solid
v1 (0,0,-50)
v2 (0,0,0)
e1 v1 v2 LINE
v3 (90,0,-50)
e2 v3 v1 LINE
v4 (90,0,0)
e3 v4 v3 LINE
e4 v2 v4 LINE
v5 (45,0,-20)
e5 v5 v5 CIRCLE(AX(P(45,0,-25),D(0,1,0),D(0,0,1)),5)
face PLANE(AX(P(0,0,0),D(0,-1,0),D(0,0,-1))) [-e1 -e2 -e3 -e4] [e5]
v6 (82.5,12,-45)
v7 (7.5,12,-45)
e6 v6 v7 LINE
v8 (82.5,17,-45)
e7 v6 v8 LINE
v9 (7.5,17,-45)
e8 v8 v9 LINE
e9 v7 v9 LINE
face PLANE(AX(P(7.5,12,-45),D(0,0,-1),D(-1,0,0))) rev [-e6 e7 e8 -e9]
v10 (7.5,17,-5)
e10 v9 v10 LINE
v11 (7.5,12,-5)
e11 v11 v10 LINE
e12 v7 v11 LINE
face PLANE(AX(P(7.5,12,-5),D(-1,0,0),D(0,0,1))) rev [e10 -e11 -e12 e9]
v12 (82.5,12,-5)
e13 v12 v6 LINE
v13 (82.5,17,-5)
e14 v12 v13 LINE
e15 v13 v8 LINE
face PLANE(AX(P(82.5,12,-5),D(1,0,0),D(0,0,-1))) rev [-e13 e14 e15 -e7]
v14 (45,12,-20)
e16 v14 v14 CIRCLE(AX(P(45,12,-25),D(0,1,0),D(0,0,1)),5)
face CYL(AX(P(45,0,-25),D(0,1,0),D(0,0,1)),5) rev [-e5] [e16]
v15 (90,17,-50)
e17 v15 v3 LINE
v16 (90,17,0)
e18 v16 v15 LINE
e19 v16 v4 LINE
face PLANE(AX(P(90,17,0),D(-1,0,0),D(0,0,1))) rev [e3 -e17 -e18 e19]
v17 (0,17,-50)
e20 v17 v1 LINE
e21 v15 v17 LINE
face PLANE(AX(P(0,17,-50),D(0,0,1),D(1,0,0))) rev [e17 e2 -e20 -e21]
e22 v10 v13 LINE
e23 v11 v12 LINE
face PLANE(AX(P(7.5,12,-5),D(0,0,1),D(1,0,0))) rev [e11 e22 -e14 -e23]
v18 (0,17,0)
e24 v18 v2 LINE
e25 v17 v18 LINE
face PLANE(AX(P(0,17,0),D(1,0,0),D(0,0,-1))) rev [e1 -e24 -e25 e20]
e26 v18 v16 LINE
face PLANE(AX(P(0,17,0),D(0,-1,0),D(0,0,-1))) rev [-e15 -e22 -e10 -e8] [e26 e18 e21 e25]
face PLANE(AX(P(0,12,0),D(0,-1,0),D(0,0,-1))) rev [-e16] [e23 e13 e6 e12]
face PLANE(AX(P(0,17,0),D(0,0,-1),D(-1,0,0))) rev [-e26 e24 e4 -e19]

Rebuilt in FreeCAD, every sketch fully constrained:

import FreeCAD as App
import Part
import Sketcher
from FreeCAD import Vector

doc = App.newDocument("Part")
body = doc.addObject("PartDesign::Body", "Body")

# Sketch on XZ plane
sketch1 = doc.addObject("Sketcher::SketchObject", "Sketch")
body.addObject(sketch1)
sketch1.AttachmentSupport = (doc.XZ_Plane, [""])
sketch1.MapMode = "FlatFace"
sketch1.addGeometry(Part.LineSegment(Vector(0, -50, 0), Vector(0, 0, 0)), False)
sketch1.addGeometry(Part.LineSegment(Vector(0, 0, 0), Vector(90, 0, 0)), False)
sketch1.addGeometry(Part.LineSegment(Vector(90, 0, 0), Vector(90, -50, 0)), False)
sketch1.addGeometry(Part.LineSegment(Vector(90, -50, 0), Vector(0, -50, 0)), False)
sketch1.addConstraint(Sketcher.Constraint("Coincident", 0, 2, 1, 1))
sketch1.addConstraint(Sketcher.Constraint("Coincident", 1, 2, 2, 1))
sketch1.addConstraint(Sketcher.Constraint("Coincident", 2, 2, 3, 1))
sketch1.addConstraint(Sketcher.Constraint("Coincident", 3, 2, 0, 1))
sketch1.addConstraint(Sketcher.Constraint("Vertical", 0))
sketch1.addConstraint(Sketcher.Constraint("Horizontal", 1))
sketch1.addConstraint(Sketcher.Constraint("Vertical", 2))
sketch1.addConstraint(Sketcher.Constraint("Horizontal", 3))
sketch1.addConstraint(Sketcher.Constraint("Coincident", 0, 2, -1, 1))
sketch1.addConstraint(Sketcher.Constraint("DistanceX", 1, 1, 1, 2, 90.0))
sketch1.addConstraint(Sketcher.Constraint("DistanceY", 0, 1, 0, 2, 50.0))
pad1 = doc.addObject("PartDesign::Pad", "Pad")
body.addObject(pad1)
pad1.Profile = sketch1
pad1.Length = 17
pad1.Reversed = True

# Sketch on XZ plane
sketch2 = doc.addObject("Sketcher::SketchObject", "Sketch001")
body.addObject(sketch2)
sketch2.AttachmentSupport = (doc.XZ_Plane, [""])
sketch2.MapMode = "FlatFace"
sketch2.AttachmentOffset = App.Placement(Vector(0, 0, -17), App.Rotation())
sketch2.addGeometry(Part.LineSegment(Vector(7.5, -45, 0), Vector(7.5, -5, 0)), False)
sketch2.addGeometry(Part.LineSegment(Vector(7.5, -5, 0), Vector(82.5, -5, 0)), False)
sketch2.addGeometry(Part.LineSegment(Vector(82.5, -5, 0), Vector(82.5, -45, 0)), False)
sketch2.addGeometry(Part.LineSegment(Vector(82.5, -45, 0), Vector(7.5, -45, 0)), False)
sketch2.addConstraint(Sketcher.Constraint("Coincident", 0, 2, 1, 1))
sketch2.addConstraint(Sketcher.Constraint("Coincident", 1, 2, 2, 1))
sketch2.addConstraint(Sketcher.Constraint("Coincident", 2, 2, 3, 1))
sketch2.addConstraint(Sketcher.Constraint("Coincident", 3, 2, 0, 1))
sketch2.addConstraint(Sketcher.Constraint("Vertical", 0))
sketch2.addConstraint(Sketcher.Constraint("Horizontal", 1))
sketch2.addConstraint(Sketcher.Constraint("Vertical", 2))
sketch2.addConstraint(Sketcher.Constraint("Horizontal", 3))
sketch2.addConstraint(Sketcher.Constraint("DistanceX", 1, 1, 1, 2, 75.0))
sketch2.addConstraint(Sketcher.Constraint("DistanceY", 0, 1, 0, 2, 40.0))
sketch2.addConstraint(Sketcher.Constraint("DistanceY", 0, 2, -1, 1, 5.0))
sketch2.addConstraint(Sketcher.Constraint("DistanceX", -1, 1, 0, 2, 7.5))
pocket1 = doc.addObject("PartDesign::Pocket", "Pocket")
body.addObject(pocket1)
pocket1.Profile = sketch2
pocket1.Length = 5
pocket1.Reversed = True

# Sketch on XZ plane
sketch3 = doc.addObject("Sketcher::SketchObject", "Sketch002")
body.addObject(sketch3)
sketch3.AttachmentSupport = (doc.XZ_Plane, [""])
sketch3.MapMode = "FlatFace"
sketch3.AttachmentOffset = App.Placement(Vector(0, 0, -12), App.Rotation())
sketch3.addGeometry(Part.Circle(Vector(45, -25, 0), Vector(0, 0, 1), 5), False)
sketch3.addConstraint(Sketcher.Constraint("Diameter", 0, 10.0))
sketch3.addConstraint(Sketcher.Constraint("DistanceX", -1, 1, 0, 3, 45.0))
sketch3.addConstraint(Sketcher.Constraint("DistanceY", 0, 3, -1, 1, 25.0))
pocket2 = doc.addObject("PartDesign::Pocket", "Pocket001")
body.addObject(pocket2)
pocket2.Profile = sketch3
pocket2.Type = "ThroughAll"
pocket2.Reversed = True

doc.recompute()
